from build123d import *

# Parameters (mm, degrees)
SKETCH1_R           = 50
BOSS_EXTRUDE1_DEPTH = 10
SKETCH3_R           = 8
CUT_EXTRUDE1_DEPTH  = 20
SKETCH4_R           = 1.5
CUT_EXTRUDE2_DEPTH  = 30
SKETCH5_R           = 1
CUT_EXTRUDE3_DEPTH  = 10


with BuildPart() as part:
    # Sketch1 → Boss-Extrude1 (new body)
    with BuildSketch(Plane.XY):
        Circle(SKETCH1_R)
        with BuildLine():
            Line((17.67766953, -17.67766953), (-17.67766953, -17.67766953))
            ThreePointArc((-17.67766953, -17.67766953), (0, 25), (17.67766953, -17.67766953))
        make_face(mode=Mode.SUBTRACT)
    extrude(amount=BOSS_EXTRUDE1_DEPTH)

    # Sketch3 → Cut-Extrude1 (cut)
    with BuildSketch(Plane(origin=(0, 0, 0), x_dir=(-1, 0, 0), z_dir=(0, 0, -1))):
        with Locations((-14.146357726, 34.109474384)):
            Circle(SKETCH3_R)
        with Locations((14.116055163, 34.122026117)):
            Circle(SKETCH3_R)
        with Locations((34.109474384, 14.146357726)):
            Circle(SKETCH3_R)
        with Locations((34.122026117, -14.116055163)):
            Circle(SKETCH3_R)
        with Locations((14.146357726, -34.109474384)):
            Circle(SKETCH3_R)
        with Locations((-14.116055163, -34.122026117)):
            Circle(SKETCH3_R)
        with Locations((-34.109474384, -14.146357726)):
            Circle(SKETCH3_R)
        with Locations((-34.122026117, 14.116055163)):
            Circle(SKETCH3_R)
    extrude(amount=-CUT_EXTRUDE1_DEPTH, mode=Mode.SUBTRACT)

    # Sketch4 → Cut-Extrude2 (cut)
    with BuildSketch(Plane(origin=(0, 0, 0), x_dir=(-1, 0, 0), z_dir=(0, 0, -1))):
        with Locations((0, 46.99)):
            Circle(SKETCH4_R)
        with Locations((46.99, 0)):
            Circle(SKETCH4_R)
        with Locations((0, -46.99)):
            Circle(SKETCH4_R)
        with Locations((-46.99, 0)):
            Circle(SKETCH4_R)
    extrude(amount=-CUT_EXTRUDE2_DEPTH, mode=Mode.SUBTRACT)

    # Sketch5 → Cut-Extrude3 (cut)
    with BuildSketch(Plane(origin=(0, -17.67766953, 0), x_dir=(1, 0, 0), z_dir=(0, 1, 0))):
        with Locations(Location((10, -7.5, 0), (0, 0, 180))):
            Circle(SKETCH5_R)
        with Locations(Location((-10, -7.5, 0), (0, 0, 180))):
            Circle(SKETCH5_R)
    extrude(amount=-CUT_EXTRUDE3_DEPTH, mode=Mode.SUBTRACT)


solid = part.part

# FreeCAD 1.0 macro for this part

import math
import FreeCAD as App
import Part
import Sketcher
from FreeCAD import Vector

doc = App.newDocument("Part")
body = doc.addObject("PartDesign::Body", "Body")

# Sketch on XY plane
sketch1 = doc.addObject("Sketcher::SketchObject", "Sketch")
body.addObject(sketch1)
sketch1.AttachmentSupport = (doc.XY_Plane, [""])
sketch1.MapMode = "FlatFace"
sketch1.addGeometry([
    Part.Circle(Vector(0, 0, 0), Vector(0, 0, 1), 50),
    Part.ArcOfCircle(Part.Circle(Vector(0, 0, 0), Vector(0, 0, 1), 25), math.radians(-45), math.radians(225)),
    Part.LineSegment(Vector(17.67767, -17.67767, 0), Vector(-17.67767, -17.67767, 0)),
], False)
sketch1.addConstraint([
    Sketcher.Constraint("Coincident", 1, 1, 2, 1),
    Sketcher.Constraint("Coincident", 2, 2, 1, 2),
    Sketcher.Constraint("Horizontal", 2),
    Sketcher.Constraint("Coincident", 0, 3, -1, 1),
    Sketcher.Constraint("Coincident", 1, 3, -1, 1),
    Sketcher.Constraint("Diameter", 0, 100.0),
    Sketcher.Constraint("Radius", 1, 25.0),
    Sketcher.Constraint("DistanceX", 2, 2, 2, 1, 35.355339),
])
pad1 = doc.addObject("PartDesign::Pad", "Pad")
body.addObject(pad1)
pad1.Profile = sketch1
pad1.Length = 10

# Sketch on XY plane
sketch2 = doc.addObject("Sketcher::SketchObject", "Sketch001")
body.addObject(sketch2)
sketch2.AttachmentSupport = (doc.XY_Plane, [""])
sketch2.MapMode = "FlatFace"
sketch2.addGeometry([
    Part.Circle(Vector(14.146358, 34.109474, 0), Vector(0, 0, 1), 8),  # 0
    Part.Circle(Vector(-14.116055, 34.122026, 0), Vector(0, 0, 1), 8),  # 1
    Part.Circle(Vector(-34.109474, 14.146358, 0), Vector(0, 0, 1), 8),  # 2
    Part.Circle(Vector(-34.122026, -14.116055, 0), Vector(0, 0, 1), 8),  # 3
    Part.Circle(Vector(-14.146358, -34.109474, 0), Vector(0, 0, 1), 8),  # 4
    Part.Circle(Vector(14.116055, -34.122026, 0), Vector(0, 0, 1), 8),  # 5
    Part.Circle(Vector(34.109474, -14.146358, 0), Vector(0, 0, 1), 8),  # 6
    Part.Circle(Vector(34.122026, 14.116055, 0), Vector(0, 0, 1), 8),  # 7
], False)
sketch2.addConstraint([
    Sketcher.Constraint("Equal", 0, 1),
    Sketcher.Constraint("Equal", 1, 2),
    Sketcher.Constraint("Equal", 2, 3),
    Sketcher.Constraint("Equal", 3, 4),
    Sketcher.Constraint("Equal", 4, 5),
    Sketcher.Constraint("Equal", 5, 6),
    Sketcher.Constraint("Equal", 6, 7),
    Sketcher.Constraint("Symmetric", 0, 3, 4, 3, -1, 1),
    Sketcher.Constraint("Symmetric", 1, 3, 5, 3, -1, 1),
    Sketcher.Constraint("Symmetric", 2, 3, 6, 3, -1, 1),
    Sketcher.Constraint("Symmetric", 3, 3, 7, 3, -1, 1),
    Sketcher.Constraint("Diameter", 0, 16.0),
    Sketcher.Constraint("DistanceY", 4, 3, 1, 3, 68.231501),
    Sketcher.Constraint("DistanceX", 3, 3, 6, 3, 68.231501),
    Sketcher.Constraint("DistanceY", 0, 3, 1, 3, 0.012552),
    Sketcher.Constraint("DistanceX", 2, 3, 1, 3, 19.993419),
    Sketcher.Constraint("DistanceY", 2, 3, 1, 3, 19.975668),
    Sketcher.Constraint("DistanceX", 3, 3, 2, 3, 0.012552),
    Sketcher.Constraint("DistanceY", 3, 3, 1, 3, 48.238081),
    Sketcher.Constraint("DistanceX", 3, 3, 4, 3, 19.975668),
])
pocket1 = doc.addObject("PartDesign::Pocket", "Pocket")
body.addObject(pocket1)
pocket1.Profile = sketch2
pocket1.Length = 20
pocket1.Reversed = True

# Sketch on XY plane
sketch3 = doc.addObject("Sketcher::SketchObject", "Sketch002")
body.addObject(sketch3)
sketch3.AttachmentSupport = (doc.XY_Plane, [""])
sketch3.MapMode = "FlatFace"
sketch3.addGeometry([
    Part.Circle(Vector(0, 46.99, 0), Vector(0, 0, 1), 1.5),
    Part.Circle(Vector(-46.99, 0, 0), Vector(0, 0, 1), 1.5),
    Part.Circle(Vector(0, -46.99, 0), Vector(0, 0, 1), 1.5),
    Part.Circle(Vector(46.99, 0, 0), Vector(0, 0, 1), 1.5),
], False)
sketch3.addConstraint([
    Sketcher.Constraint("Equal", 0, 1),
    Sketcher.Constraint("Equal", 1, 2),
    Sketcher.Constraint("Equal", 2, 3),
    Sketcher.Constraint("Symmetric", 0, 3, 2, 3, -1, 1),
    Sketcher.Constraint("Symmetric", 1, 3, 3, 3, -1, 1),
    Sketcher.Constraint("PointOnObject", 0, 3, -2),
    Sketcher.Constraint("PointOnObject", 1, 3, -1),
    Sketcher.Constraint("Diameter", 0, 3.0),
    Sketcher.Constraint("DistanceY", -1, 1, 0, 3, 46.99),
    Sketcher.Constraint("DistanceX", 1, 3, -1, 1, 46.99),
])
pocket2 = doc.addObject("PartDesign::Pocket", "Pocket001")
body.addObject(pocket2)
pocket2.Profile = sketch3
pocket2.Length = 30
pocket2.Reversed = True

# Sketch on XZ plane
sketch4 = doc.addObject("Sketcher::SketchObject", "Sketch003")
body.addObject(sketch4)
sketch4.AttachmentSupport = (doc.XZ_Plane, [""])
sketch4.MapMode = "FlatFace"
sketch4.AttachmentOffset = App.Placement(Vector(0, 0, 17.67767), App.Rotation())
sketch4.addGeometry([
    Part.Circle(Vector(10, 7.5, 0), Vector(0, 0, 1), 1),
    Part.Circle(Vector(-10, 7.5, 0), Vector(0, 0, 1), 1),
], False)
sketch4.addConstraint([
    Sketcher.Constraint("Equal", 0, 1),
    Sketcher.Constraint("Symmetric", 0, 3, 1, 3, -2),
    Sketcher.Constraint("Diameter", 0, 2.0),
    Sketcher.Constraint("DistanceX", -1, 1, 0, 3, 10.0),
    Sketcher.Constraint("DistanceY", -1, 1, 0, 3, 7.5),
])
pocket3 = doc.addObject("PartDesign::Pocket", "Pocket002")
body.addObject(pocket3)
pocket3.Profile = sketch4
pocket3.Length = 10
pocket3.Reversed = True

doc.recompute()
